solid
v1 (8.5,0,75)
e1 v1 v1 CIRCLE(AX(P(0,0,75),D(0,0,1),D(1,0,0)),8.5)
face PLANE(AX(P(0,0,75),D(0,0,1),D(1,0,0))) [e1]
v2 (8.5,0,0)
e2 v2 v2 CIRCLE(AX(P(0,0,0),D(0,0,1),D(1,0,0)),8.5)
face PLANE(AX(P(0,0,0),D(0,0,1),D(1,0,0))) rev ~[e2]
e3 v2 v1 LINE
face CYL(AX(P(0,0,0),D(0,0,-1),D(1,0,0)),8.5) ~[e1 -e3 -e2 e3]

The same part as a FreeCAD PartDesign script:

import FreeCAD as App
import Part
import Sketcher

doc = App.newDocument("Part")
params = doc.addObject("Spreadsheet::Sheet", "Params")
for row, (alias, value) in enumerate([
    ("sketch1_diameter", "17 mm"),
    ("pad1_length", "75 mm"),
], start=1):
    params.set(f"A{row}", alias)
    params.set(f"B{row}", "=" + value)
    params.setAlias(f"B{row}", alias)

body = doc.addObject("PartDesign::Body", "Body")

# Sketch on XY plane
sketch1 = doc.addObject("Sketcher::SketchObject", "Sketch")
body.addObject(sketch1)
sketch1.AttachmentSupport = (doc.XY_Plane, [""])
sketch1.MapMode = "FlatFace"
sketch1.addGeometry(Part.Circle(App.Vector(0, 0, 0), App.Vector(0, 0, 1), 8.5), False)
sketch1.addConstraint([
    Sketcher.Constraint("Coincident", 0, 3, -1, 1),
    Sketcher.Constraint("Diameter", 0, 17.0),
])
sketch1.setExpression("Constraints[1]", "Params.sketch1_diameter")
pad1 = doc.addObject("PartDesign::Pad", "Pad")
body.addObject(pad1)
pad1.Profile = sketch1
pad1.setExpression("Length", "Params.pad1_length")

doc.recompute()
